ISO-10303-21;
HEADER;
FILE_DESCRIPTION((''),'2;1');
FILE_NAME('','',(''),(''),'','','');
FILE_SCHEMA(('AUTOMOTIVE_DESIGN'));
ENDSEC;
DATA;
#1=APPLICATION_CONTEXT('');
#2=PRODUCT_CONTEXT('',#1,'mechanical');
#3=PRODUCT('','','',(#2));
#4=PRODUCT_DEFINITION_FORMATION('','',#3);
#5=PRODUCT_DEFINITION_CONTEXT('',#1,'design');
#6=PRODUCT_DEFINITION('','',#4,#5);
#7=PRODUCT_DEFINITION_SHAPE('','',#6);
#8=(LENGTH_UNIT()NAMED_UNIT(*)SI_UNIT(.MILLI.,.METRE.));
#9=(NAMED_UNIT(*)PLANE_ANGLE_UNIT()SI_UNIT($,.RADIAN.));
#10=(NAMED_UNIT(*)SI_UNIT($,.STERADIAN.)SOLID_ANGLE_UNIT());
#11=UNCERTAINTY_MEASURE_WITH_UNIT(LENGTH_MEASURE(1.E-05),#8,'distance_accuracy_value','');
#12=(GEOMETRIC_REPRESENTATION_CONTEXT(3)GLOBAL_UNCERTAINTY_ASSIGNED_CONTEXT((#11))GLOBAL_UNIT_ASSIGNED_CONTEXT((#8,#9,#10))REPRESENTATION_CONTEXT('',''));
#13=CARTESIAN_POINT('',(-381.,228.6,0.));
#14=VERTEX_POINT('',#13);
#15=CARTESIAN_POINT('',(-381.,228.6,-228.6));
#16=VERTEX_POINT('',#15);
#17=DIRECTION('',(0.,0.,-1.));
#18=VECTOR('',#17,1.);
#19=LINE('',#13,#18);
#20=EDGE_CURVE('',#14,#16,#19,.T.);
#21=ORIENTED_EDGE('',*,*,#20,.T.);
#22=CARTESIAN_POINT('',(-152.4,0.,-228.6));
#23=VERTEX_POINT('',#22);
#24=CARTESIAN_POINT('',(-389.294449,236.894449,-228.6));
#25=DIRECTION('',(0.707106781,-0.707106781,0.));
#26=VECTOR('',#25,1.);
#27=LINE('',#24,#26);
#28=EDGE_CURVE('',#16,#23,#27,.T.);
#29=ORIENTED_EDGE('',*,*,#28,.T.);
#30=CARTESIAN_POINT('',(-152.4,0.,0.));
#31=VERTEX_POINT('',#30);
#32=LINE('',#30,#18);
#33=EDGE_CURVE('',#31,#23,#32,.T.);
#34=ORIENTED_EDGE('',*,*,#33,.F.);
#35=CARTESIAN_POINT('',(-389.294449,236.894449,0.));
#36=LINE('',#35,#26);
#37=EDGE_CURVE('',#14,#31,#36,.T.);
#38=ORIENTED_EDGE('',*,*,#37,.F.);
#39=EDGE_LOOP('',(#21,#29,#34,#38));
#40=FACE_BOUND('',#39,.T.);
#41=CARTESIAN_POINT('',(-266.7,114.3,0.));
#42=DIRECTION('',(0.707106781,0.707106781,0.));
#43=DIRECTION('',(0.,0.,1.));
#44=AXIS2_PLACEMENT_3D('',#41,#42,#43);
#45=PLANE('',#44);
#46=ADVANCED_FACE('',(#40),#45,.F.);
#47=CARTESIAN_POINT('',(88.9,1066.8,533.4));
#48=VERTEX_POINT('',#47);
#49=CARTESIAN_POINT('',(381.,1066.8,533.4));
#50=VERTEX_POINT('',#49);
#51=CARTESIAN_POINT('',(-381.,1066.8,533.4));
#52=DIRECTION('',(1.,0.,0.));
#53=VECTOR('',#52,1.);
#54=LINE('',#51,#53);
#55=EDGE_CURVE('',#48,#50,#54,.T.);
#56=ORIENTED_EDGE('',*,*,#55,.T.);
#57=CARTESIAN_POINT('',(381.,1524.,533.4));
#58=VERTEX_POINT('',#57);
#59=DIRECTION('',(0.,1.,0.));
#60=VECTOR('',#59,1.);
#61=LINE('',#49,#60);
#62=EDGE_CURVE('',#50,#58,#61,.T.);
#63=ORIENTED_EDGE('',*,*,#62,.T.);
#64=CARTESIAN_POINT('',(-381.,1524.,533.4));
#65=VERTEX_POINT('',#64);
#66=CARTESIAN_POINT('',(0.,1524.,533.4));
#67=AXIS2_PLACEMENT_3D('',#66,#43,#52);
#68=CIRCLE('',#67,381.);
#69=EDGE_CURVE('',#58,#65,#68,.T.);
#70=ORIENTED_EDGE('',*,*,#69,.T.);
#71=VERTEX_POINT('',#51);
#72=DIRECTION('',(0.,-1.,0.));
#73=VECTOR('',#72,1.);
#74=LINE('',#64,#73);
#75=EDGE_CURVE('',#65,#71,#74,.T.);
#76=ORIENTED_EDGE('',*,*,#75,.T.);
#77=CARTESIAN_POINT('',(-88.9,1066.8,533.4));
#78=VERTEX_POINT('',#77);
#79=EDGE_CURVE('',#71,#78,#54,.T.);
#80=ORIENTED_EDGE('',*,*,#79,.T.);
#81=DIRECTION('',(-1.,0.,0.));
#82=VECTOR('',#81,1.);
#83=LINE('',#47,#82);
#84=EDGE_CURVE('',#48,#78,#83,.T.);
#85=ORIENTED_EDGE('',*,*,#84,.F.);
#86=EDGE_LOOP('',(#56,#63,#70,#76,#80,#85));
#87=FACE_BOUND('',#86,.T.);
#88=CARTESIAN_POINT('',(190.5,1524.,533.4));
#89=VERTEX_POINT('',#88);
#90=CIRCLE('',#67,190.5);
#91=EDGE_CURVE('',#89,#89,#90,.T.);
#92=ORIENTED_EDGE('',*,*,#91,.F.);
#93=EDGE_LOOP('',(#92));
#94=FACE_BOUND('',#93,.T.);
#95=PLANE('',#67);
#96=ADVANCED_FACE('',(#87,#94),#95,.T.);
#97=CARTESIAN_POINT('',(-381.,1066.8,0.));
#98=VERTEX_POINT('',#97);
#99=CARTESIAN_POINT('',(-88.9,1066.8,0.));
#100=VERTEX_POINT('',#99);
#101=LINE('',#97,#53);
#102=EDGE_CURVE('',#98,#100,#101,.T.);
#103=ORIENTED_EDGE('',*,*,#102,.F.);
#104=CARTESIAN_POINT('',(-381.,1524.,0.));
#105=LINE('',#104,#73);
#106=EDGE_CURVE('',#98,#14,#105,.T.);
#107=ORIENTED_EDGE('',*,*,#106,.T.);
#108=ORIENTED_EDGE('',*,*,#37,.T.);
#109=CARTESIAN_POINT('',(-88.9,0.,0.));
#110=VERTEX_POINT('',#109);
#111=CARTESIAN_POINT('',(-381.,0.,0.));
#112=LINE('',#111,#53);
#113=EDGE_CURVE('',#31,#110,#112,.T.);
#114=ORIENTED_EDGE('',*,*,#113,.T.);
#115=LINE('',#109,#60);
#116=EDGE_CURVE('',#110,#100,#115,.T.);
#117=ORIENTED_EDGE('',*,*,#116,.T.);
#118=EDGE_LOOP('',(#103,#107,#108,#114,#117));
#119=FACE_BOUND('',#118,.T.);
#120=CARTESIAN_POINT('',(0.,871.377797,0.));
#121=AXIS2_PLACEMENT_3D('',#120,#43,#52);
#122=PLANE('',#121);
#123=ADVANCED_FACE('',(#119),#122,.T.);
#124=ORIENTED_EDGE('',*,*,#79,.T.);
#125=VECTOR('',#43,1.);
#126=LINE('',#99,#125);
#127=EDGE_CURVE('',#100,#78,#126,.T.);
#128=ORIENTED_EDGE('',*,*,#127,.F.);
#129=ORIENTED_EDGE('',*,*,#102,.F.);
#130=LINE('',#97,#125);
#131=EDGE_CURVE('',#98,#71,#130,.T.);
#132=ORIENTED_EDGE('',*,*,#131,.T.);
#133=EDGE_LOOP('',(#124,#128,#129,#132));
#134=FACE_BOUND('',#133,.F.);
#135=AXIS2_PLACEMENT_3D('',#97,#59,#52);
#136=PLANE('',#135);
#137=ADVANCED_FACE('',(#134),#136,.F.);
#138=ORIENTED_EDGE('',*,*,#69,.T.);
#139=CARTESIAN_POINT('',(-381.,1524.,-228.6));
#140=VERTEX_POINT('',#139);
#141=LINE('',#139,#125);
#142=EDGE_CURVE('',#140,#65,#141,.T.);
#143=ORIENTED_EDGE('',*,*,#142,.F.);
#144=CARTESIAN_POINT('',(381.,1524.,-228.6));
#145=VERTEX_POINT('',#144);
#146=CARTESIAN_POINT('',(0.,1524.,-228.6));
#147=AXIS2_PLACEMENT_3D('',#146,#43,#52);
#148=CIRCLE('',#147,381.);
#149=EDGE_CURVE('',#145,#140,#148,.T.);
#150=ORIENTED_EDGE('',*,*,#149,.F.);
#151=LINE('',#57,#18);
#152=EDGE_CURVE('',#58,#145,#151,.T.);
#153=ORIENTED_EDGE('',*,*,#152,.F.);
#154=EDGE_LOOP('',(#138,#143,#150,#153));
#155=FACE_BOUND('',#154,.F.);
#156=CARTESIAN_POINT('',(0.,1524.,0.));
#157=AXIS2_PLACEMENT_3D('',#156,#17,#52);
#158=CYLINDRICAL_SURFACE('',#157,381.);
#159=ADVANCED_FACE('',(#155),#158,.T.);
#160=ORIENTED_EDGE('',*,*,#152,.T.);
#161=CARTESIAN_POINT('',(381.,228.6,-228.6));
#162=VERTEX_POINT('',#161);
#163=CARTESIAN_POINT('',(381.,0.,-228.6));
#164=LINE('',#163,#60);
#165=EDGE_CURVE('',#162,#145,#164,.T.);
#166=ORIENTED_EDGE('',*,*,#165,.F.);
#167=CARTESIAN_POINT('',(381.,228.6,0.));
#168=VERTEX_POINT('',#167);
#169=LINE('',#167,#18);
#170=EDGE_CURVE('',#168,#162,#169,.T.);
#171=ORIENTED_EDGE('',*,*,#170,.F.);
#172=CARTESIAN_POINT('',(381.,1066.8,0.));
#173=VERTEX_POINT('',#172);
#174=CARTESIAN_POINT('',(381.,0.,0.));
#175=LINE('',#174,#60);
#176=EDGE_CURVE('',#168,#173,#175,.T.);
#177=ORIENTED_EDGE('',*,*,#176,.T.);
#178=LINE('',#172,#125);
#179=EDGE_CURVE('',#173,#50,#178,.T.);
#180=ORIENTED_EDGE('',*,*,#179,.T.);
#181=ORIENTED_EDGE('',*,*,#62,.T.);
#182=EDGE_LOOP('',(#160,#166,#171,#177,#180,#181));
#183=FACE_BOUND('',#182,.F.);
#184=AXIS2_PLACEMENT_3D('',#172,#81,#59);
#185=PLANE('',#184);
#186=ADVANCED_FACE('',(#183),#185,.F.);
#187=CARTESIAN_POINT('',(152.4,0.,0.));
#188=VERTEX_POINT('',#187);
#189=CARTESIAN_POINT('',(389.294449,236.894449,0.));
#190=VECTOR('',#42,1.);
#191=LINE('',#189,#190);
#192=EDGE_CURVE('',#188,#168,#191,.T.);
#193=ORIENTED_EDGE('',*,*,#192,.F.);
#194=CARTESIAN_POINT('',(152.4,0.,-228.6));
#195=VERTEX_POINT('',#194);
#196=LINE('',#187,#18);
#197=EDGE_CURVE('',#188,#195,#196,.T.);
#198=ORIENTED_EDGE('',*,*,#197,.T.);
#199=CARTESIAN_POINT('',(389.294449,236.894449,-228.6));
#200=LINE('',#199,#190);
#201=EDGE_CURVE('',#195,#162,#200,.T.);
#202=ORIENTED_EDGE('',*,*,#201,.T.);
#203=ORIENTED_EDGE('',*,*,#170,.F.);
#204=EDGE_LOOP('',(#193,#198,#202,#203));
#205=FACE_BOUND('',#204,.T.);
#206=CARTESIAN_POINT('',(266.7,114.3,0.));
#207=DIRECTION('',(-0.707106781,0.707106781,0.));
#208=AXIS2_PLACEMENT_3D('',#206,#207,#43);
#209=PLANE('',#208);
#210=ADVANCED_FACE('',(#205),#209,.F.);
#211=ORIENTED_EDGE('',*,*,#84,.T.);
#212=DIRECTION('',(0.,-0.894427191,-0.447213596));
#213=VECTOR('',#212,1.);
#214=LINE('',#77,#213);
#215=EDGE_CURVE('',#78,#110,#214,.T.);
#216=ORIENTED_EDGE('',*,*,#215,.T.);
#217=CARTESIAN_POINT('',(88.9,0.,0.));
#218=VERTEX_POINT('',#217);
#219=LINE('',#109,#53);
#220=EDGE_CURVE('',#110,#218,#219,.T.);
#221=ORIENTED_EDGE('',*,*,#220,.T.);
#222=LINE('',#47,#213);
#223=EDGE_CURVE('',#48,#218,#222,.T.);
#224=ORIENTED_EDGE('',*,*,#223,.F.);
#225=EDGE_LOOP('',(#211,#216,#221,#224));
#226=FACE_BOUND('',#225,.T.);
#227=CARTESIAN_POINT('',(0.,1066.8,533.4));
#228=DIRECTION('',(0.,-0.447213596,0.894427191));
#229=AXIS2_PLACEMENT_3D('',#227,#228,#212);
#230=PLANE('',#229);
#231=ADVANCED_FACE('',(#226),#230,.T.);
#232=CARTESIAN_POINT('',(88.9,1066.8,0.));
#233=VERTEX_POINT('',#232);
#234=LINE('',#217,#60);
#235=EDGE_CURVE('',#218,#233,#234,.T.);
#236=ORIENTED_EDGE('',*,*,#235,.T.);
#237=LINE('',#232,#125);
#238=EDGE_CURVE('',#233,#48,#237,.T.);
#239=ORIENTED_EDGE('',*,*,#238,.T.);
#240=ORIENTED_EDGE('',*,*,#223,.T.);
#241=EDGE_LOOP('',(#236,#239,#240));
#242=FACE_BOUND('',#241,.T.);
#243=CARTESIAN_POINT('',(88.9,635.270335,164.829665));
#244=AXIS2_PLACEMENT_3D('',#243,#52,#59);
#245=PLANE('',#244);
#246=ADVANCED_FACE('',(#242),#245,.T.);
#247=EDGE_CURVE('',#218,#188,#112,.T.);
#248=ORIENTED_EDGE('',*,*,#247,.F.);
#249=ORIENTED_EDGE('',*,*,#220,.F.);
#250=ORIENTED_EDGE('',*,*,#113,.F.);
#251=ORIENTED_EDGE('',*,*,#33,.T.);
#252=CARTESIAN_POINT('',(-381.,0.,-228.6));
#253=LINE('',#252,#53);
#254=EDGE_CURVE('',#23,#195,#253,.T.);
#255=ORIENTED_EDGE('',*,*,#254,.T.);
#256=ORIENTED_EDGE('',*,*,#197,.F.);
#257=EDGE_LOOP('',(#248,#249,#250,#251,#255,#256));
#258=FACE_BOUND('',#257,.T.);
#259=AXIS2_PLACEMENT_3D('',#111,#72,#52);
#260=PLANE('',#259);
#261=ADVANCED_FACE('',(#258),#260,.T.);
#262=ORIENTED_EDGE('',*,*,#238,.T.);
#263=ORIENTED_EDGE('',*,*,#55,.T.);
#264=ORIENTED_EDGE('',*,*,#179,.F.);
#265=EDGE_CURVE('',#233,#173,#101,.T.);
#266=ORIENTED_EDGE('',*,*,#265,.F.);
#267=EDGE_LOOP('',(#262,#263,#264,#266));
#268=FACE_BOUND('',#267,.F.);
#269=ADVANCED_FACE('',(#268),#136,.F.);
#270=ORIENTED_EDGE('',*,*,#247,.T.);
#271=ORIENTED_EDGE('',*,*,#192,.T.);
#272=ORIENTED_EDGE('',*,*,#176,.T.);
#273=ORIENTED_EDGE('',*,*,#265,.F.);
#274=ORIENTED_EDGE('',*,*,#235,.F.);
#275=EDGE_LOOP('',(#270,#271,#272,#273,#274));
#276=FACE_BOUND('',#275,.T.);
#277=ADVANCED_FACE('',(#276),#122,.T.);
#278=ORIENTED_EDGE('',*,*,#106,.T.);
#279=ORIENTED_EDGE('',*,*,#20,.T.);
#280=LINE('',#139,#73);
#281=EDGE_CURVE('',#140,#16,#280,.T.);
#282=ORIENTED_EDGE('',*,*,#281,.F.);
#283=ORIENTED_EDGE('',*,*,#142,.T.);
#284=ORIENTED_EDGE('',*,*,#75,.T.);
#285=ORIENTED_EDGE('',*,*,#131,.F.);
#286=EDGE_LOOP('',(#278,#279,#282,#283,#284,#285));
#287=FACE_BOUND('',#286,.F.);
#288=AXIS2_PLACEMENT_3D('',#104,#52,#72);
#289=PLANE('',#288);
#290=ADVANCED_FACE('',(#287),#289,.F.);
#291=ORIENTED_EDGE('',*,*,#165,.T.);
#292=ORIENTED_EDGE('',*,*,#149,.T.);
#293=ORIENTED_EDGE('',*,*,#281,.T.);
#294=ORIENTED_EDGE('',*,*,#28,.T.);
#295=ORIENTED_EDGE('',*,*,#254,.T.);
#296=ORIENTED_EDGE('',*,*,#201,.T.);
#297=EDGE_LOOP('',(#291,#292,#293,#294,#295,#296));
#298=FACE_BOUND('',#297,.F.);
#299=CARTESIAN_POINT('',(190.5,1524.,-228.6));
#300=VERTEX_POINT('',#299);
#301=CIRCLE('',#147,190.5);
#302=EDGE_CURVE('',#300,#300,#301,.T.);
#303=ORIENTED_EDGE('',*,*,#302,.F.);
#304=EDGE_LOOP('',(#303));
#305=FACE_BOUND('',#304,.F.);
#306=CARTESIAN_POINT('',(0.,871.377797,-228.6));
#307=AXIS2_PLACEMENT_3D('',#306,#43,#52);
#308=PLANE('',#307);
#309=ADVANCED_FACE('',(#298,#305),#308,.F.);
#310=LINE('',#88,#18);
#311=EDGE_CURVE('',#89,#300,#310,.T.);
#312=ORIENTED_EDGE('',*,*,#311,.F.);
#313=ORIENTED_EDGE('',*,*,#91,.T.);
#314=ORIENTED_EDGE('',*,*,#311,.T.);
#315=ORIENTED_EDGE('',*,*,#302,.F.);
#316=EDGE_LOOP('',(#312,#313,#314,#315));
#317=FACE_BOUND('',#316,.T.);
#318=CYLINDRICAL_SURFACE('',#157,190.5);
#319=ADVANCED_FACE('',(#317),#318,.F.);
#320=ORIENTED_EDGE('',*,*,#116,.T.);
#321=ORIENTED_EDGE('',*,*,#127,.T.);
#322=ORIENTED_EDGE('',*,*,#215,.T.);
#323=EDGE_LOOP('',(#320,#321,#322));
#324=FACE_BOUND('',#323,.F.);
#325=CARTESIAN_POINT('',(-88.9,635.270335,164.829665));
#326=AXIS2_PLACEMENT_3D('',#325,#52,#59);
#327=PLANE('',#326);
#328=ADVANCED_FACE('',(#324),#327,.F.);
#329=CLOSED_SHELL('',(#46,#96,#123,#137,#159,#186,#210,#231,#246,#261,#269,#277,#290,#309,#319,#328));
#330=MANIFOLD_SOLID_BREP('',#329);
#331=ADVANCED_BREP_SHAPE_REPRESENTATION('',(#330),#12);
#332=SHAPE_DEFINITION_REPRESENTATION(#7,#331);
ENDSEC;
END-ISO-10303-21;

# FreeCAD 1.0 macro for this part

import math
import FreeCAD as App
import Part
import Sketcher

V = App.Vector
Q = App.Units.Quantity


def edges_at(feature, points):
    """Names of the edges that pass closest to the given points."""
    edges = feature.Shape.Edges
    near = lambda p: min(range(len(edges)), key=lambda i: edges[i].distToShape(Part.Vertex(*p))[0])
    return sorted({f"Edge{near(p) + 1}" for p in points})

doc = App.newDocument("Part")
params = doc.addObject("Spreadsheet::Sheet", "Params")
for row, (alias, value) in enumerate([
    ("sketch1_diameter", "15 in"),
    ("sketch1_radius", "15 in"),
    ("sketch1_height", "60 in"),
    ("pad1_length", "9 in"),
    ("sketch2_diameter", "15 in"),
    ("sketch2_radius", "15 in"),
    ("sketch2_height", "18 in"),
    ("pad2_length", "21 in"),
    ("sketch3_width", "42 in"),
    ("sketch3_height", "21 in"),
    ("pad3_length", "7 in"),
    ("chamfer_size", "9 in"),
    ("chamfer2_size", "9 in"),
], start=1):
    params.set(f"A{row}", alias)
    params.set(f"B{row}", "=" + value)
    params.setAlias(f"B{row}", alias)

body = doc.addObject("PartDesign::Body", "Body")

# Sketch on XY plane
sketch1 = body.newObject("Sketcher::SketchObject", "Sketch")
sketch1.AttachmentSupport = (doc.getObject("XY_Plane"), [""])
sketch1.MapMode = "FlatFace"
sketch1.addGeometry(Part.LineSegment(V(-381, 0, 0), V(381, 0, 0)), False)
sketch1.addGeometry(Part.LineSegment(V(381, 0, 0), V(381, 1524, 0)), False)
sketch1.addGeometry(Part.ArcOfCircle(Part.Circle(V(0, 1524, 0), V(0, 0, 1), 381), math.radians(0), math.radians(180)), False)
sketch1.addGeometry(Part.LineSegment(V(-381, 1524, 0), V(-381, 0, 0)), False)
sketch1.addGeometry(Part.Circle(V(0, 1524, 0), V(0, 0, 1), 190), False)
sketch1.addConstraint(Sketcher.Constraint("Coincident", 0, 2, 1, 1))
sketch1.addConstraint(Sketcher.Constraint("Tangent", 1, 2, 2, 1))
sketch1.addConstraint(Sketcher.Constraint("Tangent", 2, 2, 3, 1))
sketch1.addConstraint(Sketcher.Constraint("Coincident", 3, 2, 0, 1))
sketch1.addConstraint(Sketcher.Constraint("Horizontal", 0))
sketch1.addConstraint(Sketcher.Constraint("Vertical", 1))
sketch1.addConstraint(Sketcher.Constraint("Vertical", 3))
sketch1.addConstraint(Sketcher.Constraint("Coincident", 4, 3, 2, 3))
sketch1.addConstraint(Sketcher.Constraint("Symmetric", 0, 2, 3, 2, -1, 1))
sketch1.addConstraint(Sketcher.Constraint("Diameter", 4, Q("15 in")))
sketch1.addConstraint(Sketcher.Constraint("Radius", 2, Q("15 in")))
sketch1.addConstraint(Sketcher.Constraint("DistanceY", 1, 1, 1, 2, Q("60 in")))
sketch1.setExpression("Constraints[9]", "Params.sketch1_diameter")
sketch1.setExpression("Constraints[10]", "Params.sketch1_radius")
sketch1.setExpression("Constraints[11]", "Params.sketch1_height")
pad1 = body.newObject("PartDesign::Pad", "Pad")
pad1.Profile = sketch1
pad1.setExpression("Length", "Params.pad1_length")
pad1.Reversed = True

# Sketch on XY plane
sketch2 = body.newObject("Sketcher::SketchObject", "Sketch001")
sketch2.AttachmentSupport = (doc.getObject("XY_Plane"), [""])
sketch2.MapMode = "FlatFace"
sketch2.addGeometry(Part.ArcOfCircle(Part.Circle(V(0, 1524, 0), V(0, 0, 1), 381), math.radians(0), math.radians(180)), False)
sketch2.addGeometry(Part.LineSegment(V(-381, 1524, 0), V(-381, 1067, 0)), False)
sketch2.addGeometry(Part.LineSegment(V(-381, 1067, 0), V(381, 1067, 0)), False)
sketch2.addGeometry(Part.LineSegment(V(381, 1067, 0), V(381, 1524, 0)), False)
sketch2.addGeometry(Part.Circle(V(0, 1524, 0), V(0, 0, 1), 190), False)
sketch2.addConstraint(Sketcher.Constraint("Tangent", 0, 2, 1, 1))
sketch2.addConstraint(Sketcher.Constraint("Coincident", 1, 2, 2, 1))
sketch2.addConstraint(Sketcher.Constraint("Coincident", 2, 2, 3, 1))
sketch2.addConstraint(Sketcher.Constraint("Tangent", 3, 2, 0, 1))
sketch2.addConstraint(Sketcher.Constraint("Vertical", 1))
sketch2.addConstraint(Sketcher.Constraint("Horizontal", 2))
sketch2.addConstraint(Sketcher.Constraint("Vertical", 3))
sketch2.addConstraint(Sketcher.Constraint("Coincident", 4, 3, 0, 3))
sketch2.addConstraint(Sketcher.Constraint("PointOnObject", 0, 3, -2))
sketch2.addConstraint(Sketcher.Constraint("Diameter", 4, Q("15 in")))
sketch2.addConstraint(Sketcher.Constraint("Radius", 0, Q("15 in")))
sketch2.addConstraint(Sketcher.Constraint("DistanceY", 1, 2, 1, 1, Q("18 in")))
sketch2.addConstraint(Sketcher.Constraint("DistanceY", -1, 1, 0, 3, Q("60 in")))
sketch2.setExpression("Constraints[9]", "Params.sketch2_diameter")
sketch2.setExpression("Constraints[10]", "Params.sketch2_radius")
sketch2.setExpression("Constraints[11]", "Params.sketch2_height")
pad2 = body.newObject("PartDesign::Pad", "Pad001")
pad2.Profile = sketch2
pad2.setExpression("Length", "Params.pad2_length")

# Sketch on YZ plane
sketch3 = body.newObject("Sketcher::SketchObject", "Sketch002")
sketch3.AttachmentSupport = (doc.getObject("YZ_Plane"), [""])
sketch3.MapMode = "FlatFace"
sketch3.addGeometry(Part.LineSegment(V(1067, 533, 0), V(0, 0, 0)), False)
sketch3.addGeometry(Part.LineSegment(V(0, 0, 0), V(1067, 0, 0)), False)
sketch3.addGeometry(Part.LineSegment(V(1067, 0, 0), V(1067, 533, 0)), False)
sketch3.addConstraint(Sketcher.Constraint("Coincident", 0, 2, 1, 1))
sketch3.addConstraint(Sketcher.Constraint("Coincident", 1, 2, 2, 1))
sketch3.addConstraint(Sketcher.Constraint("Coincident", 2, 2, 0, 1))
sketch3.addConstraint(Sketcher.Constraint("Horizontal", 1))
sketch3.addConstraint(Sketcher.Constraint("Vertical", 2))
sketch3.addConstraint(Sketcher.Constraint("Coincident", 0, 2, -1, 1))
sketch3.addConstraint(Sketcher.Constraint("DistanceX", 1, 1, 1, 2, Q("42 in")))
sketch3.addConstraint(Sketcher.Constraint("DistanceY", 2, 1, 2, 2, Q("21 in")))
sketch3.setExpression("Constraints[6]", "Params.sketch3_width")
sketch3.setExpression("Constraints[7]", "Params.sketch3_height")
pad3 = body.newObject("PartDesign::Pad", "Pad002")
pad3.Profile = sketch3
pad3.setExpression("Length", "Params.pad3_length")
pad3.Midplane = True
doc.recompute()

chamfer = body.newObject("PartDesign::Chamfer", "Chamfer")
chamfer.Base = (pad3, edges_at(pad3, [(-381, 0, -114.3)]))
chamfer.setExpression("Size", "Params.chamfer_size")
doc.recompute()

chamfer2 = body.newObject("PartDesign::Chamfer", "Chamfer001")
chamfer2.Base = (chamfer, edges_at(chamfer, [(381, 0, -114.3)]))
chamfer2.setExpression("Size", "Params.chamfer2_size")

doc.recompute()
